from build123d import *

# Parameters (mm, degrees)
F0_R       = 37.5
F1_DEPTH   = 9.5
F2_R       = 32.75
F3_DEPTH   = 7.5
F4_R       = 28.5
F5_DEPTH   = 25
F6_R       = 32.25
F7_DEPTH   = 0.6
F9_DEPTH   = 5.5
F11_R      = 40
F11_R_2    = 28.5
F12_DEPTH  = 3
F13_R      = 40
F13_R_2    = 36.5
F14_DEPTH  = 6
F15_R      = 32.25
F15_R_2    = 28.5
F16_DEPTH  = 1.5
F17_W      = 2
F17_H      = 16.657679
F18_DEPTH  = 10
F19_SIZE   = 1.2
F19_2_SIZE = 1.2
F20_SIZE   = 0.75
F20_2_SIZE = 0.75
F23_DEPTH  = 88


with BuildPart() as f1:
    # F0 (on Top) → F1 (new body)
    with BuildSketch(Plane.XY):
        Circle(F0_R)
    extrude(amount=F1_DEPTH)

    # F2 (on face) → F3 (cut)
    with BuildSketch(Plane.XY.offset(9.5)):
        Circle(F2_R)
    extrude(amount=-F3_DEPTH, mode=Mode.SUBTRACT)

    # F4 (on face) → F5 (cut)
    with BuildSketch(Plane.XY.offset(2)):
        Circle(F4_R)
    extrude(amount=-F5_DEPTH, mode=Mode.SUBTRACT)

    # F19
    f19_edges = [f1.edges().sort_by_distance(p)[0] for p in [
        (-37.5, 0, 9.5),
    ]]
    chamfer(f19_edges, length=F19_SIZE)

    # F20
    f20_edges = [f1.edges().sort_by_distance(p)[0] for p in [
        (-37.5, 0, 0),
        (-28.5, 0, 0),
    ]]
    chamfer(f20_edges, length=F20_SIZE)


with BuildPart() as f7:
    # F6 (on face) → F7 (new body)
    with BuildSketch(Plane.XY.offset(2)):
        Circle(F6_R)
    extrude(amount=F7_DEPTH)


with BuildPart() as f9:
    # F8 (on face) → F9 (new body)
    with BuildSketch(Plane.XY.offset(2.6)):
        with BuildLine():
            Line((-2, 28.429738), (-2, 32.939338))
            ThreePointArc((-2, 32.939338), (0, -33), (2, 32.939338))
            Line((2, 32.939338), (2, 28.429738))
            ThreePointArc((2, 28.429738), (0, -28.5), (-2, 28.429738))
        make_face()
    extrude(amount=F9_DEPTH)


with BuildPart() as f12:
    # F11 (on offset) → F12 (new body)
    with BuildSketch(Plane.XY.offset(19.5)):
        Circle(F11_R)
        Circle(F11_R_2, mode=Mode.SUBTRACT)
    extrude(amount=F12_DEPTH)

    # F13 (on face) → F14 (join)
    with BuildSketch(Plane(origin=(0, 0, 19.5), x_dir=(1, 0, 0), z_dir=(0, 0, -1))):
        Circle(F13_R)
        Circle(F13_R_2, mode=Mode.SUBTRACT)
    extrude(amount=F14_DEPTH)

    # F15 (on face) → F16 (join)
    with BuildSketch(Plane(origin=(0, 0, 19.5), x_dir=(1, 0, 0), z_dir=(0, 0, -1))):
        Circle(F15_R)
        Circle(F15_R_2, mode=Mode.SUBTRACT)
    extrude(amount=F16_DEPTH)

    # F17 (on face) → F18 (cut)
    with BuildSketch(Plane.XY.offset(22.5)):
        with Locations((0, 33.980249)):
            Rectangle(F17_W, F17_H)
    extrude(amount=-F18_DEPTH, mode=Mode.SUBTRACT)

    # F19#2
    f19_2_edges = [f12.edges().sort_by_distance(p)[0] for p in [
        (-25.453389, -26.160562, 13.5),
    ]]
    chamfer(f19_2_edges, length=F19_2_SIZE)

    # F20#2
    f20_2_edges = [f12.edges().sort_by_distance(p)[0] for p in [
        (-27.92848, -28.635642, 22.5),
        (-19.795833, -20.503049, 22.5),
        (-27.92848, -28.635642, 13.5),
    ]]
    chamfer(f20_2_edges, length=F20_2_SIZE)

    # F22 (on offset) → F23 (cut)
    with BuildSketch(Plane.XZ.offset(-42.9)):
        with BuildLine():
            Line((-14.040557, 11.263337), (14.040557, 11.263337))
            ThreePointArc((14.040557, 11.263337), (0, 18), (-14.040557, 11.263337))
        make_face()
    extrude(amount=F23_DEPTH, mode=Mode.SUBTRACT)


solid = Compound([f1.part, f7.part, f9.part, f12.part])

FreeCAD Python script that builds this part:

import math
import FreeCAD as App
import Part
import Sketcher

V = App.Vector


def edges_at(feature, points):
    """Names of the edges that pass closest to the given points."""
    edges = feature.Shape.Edges
    near = lambda p: min(range(len(edges)), key=lambda i: edges[i].distToShape(Part.Vertex(*p))[0])
    return sorted({f"Edge{near(p) + 1}" for p in points})


def add_polygon(sketch, points):
    """Adds a closed chain of lines whose ends are joined by coincident constraints."""
    first, n = sketch.GeometryCount, len(points)
    for a, b in zip(points, points[1:] + points[:1]):
        sketch.addGeometry(Part.LineSegment(App.Vector(*a, 0), App.Vector(*b, 0)), False)
    for i in range(n):
        sketch.addConstraint(Sketcher.Constraint("Coincident", first + i, 2, first + (i + 1) % n, 1))

doc = App.newDocument("Part")
body = doc.addObject("PartDesign::Body", "Body")

sketch1 = body.newObject("Sketcher::SketchObject", "Sketch")
sketch1.AttachmentSupport = (doc.getObject("XY_Plane"), [""])
sketch1.MapMode = "FlatFace"
sketch1.addGeometry(Part.Circle(V(0, 0, 0), V(0, 0, 1), 37.5), False)
sketch1.addConstraint([
    Sketcher.Constraint("Coincident", 0, 3, -1, 1),
    Sketcher.Constraint("Diameter", 0, 75.0),
])
pad1 = body.newObject("PartDesign::Pad", "Pad")
pad1.Profile = sketch1
pad1.Length = 9.5

sketch2 = body.newObject("Sketcher::SketchObject", "Sketch001")
sketch2.AttachmentSupport = (doc.getObject("XY_Plane"), [""])
sketch2.MapMode = "FlatFace"
sketch2.AttachmentOffset = App.Placement(V(0, 0, 9.5), App.Rotation())
sketch2.addGeometry(Part.Circle(V(0, 0, 0), V(0, 0, 1), 32.75), False)
sketch2.addConstraint([
    Sketcher.Constraint("Coincident", 0, 3, -1, 1),
    Sketcher.Constraint("Diameter", 0, 65.5),
])
pocket1 = body.newObject("PartDesign::Pocket", "Pocket")
pocket1.Profile = sketch2
pocket1.Length = 7.5

sketch3 = body.newObject("Sketcher::SketchObject", "Sketch002")
sketch3.AttachmentSupport = (doc.getObject("XY_Plane"), [""])
sketch3.MapMode = "FlatFace"
sketch3.AttachmentOffset = App.Placement(V(0, 0, 2), App.Rotation())
sketch3.addGeometry(Part.Circle(V(0, 0, 0), V(0, 0, 1), 28.5), False)
sketch3.addConstraint([
    Sketcher.Constraint("Coincident", 0, 3, -1, 1),
    Sketcher.Constraint("Diameter", 0, 57.0),
])
pocket2 = body.newObject("PartDesign::Pocket", "Pocket001")
pocket2.Profile = sketch3
pocket2.Length = 25
doc.recompute()

chamfer = body.newObject("PartDesign::Chamfer", "Chamfer")
chamfer.Base = (pocket2, edges_at(pocket2, [(-37.5, 0, 9.5)]))
chamfer.Size = 1.2
doc.recompute()

chamfer2 = body.newObject("PartDesign::Chamfer", "Chamfer001")
chamfer2.Base = (chamfer, edges_at(chamfer, [(-37.5, 0, 0), (-28.5, 0, 0)]))
chamfer2.Size = 0.75
body2 = doc.addObject("PartDesign::Body", "Body001")

sketch4 = body2.newObject("Sketcher::SketchObject", "Sketch003")
sketch4.AttachmentSupport = (doc.getObject("XY_Plane001"), [""])
sketch4.MapMode = "FlatFace"
sketch4.AttachmentOffset = App.Placement(V(0, 0, 2), App.Rotation())
sketch4.addGeometry(Part.Circle(V(0, 0, 0), V(0, 0, 1), 32.25), False)
sketch4.addConstraint([
    Sketcher.Constraint("Coincident", 0, 3, -1, 1),
    Sketcher.Constraint("Diameter", 0, 64.5),
])
pad2 = body2.newObject("PartDesign::Pad", "Pad001")
pad2.Profile = sketch4
pad2.Length = 0.6
body3 = doc.addObject("PartDesign::Body", "Body002")

sketch5 = body3.newObject("Sketcher::SketchObject", "Sketch004")
sketch5.AttachmentSupport = (doc.getObject("XY_Plane002"), [""])
sketch5.MapMode = "FlatFace"
sketch5.AttachmentOffset = App.Placement(V(0, 0, 2.6), App.Rotation())
sketch5.addGeometry([
    Part.LineSegment(V(-2, 28.429738, 0), V(-2, 32.939338, 0)),
    Part.ArcOfCircle(Part.Circle(V(0, 0, 0), V(0, 0, 1), 33), math.radians(93.474601), math.radians(446.525399)),
    Part.LineSegment(V(2, 32.939338, 0), V(2, 28.429738, 0)),
    Part.ArcOfCircle(Part.Circle(V(0, 0, 0), V(0, 0, 1), 28.5), math.radians(94.024064), math.radians(445.975936)),
], False)
sketch5.addConstraint([
    Sketcher.Constraint("Coincident", 0, 2, 1, 1),
    Sketcher.Constraint("Coincident", 1, 2, 2, 1),
    Sketcher.Constraint("Coincident", 2, 2, 3, 2),
    Sketcher.Constraint("Coincident", 3, 1, 0, 1),
    Sketcher.Constraint("Vertical", 0),
    Sketcher.Constraint("Vertical", 2),
    Sketcher.Constraint("Coincident", 1, 3, -1, 1),
    Sketcher.Constraint("Coincident", 3, 3, -1, 1),
    Sketcher.Constraint("Horizontal", 0, 2, 1, 2),
    Sketcher.Constraint("Radius", 1, 33.0),
    Sketcher.Constraint("Radius", 3, 28.5),
    Sketcher.Constraint("DistanceX", 0, 2, -1, 1, 2.0),
])
pad3 = body3.newObject("PartDesign::Pad", "Pad002")
pad3.Profile = sketch5
pad3.Length = 5.5
body4 = doc.addObject("PartDesign::Body", "Body003")

sketch6 = body4.newObject("Sketcher::SketchObject", "Sketch005")
sketch6.AttachmentSupport = (doc.getObject("XY_Plane003"), [""])
sketch6.MapMode = "FlatFace"
sketch6.AttachmentOffset = App.Placement(V(0, 0, 19.5), App.Rotation())
sketch6.addGeometry([
    Part.Circle(V(0, 0, 0), V(0, 0, 1), 40),
    Part.Circle(V(0, 0, 0), V(0, 0, 1), 28.5),
], False)
sketch6.addConstraint([
    Sketcher.Constraint("Coincident", 0, 3, -1, 1),
    Sketcher.Constraint("Coincident", 1, 3, -1, 1),
    Sketcher.Constraint("Diameter", 0, 80.0),
    Sketcher.Constraint("Diameter", 1, 57.0),
])
pad4 = body4.newObject("PartDesign::Pad", "Pad003")
pad4.Profile = sketch6
pad4.Length = 3

sketch7 = body4.newObject("Sketcher::SketchObject", "Sketch006")
sketch7.AttachmentSupport = (doc.getObject("XY_Plane003"), [""])
sketch7.MapMode = "FlatFace"
sketch7.AttachmentOffset = App.Placement(V(0, 0, 19.5), App.Rotation())
sketch7.addGeometry([
    Part.Circle(V(0, 0, 0), V(0, 0, 1), 40),
    Part.Circle(V(0, 0, 0), V(0, 0, 1), 36.5),
], False)
sketch7.addConstraint([
    Sketcher.Constraint("Coincident", 0, 3, -1, 1),
    Sketcher.Constraint("Coincident", 1, 3, -1, 1),
    Sketcher.Constraint("Diameter", 0, 80.0),
    Sketcher.Constraint("Diameter", 1, 73.0),
])
pad5 = body4.newObject("PartDesign::Pad", "Pad004")
pad5.Profile = sketch7
pad5.Length = 6
pad5.Reversed = True

sketch8 = body4.newObject("Sketcher::SketchObject", "Sketch007")
sketch8.AttachmentSupport = (doc.getObject("XY_Plane003"), [""])
sketch8.MapMode = "FlatFace"
sketch8.AttachmentOffset = App.Placement(V(0, 0, 19.5), App.Rotation())
sketch8.addGeometry([
    Part.Circle(V(0, 0, 0), V(0, 0, 1), 32.25),
    Part.Circle(V(0, 0, 0), V(0, 0, 1), 28.5),
], False)
sketch8.addConstraint([
    Sketcher.Constraint("Coincident", 0, 3, -1, 1),
    Sketcher.Constraint("Coincident", 1, 3, -1, 1),
    Sketcher.Constraint("Diameter", 1, 57.0),
    Sketcher.Constraint("Diameter", 0, 64.5),
])
pad6 = body4.newObject("PartDesign::Pad", "Pad005")
pad6.Profile = sketch8
pad6.Length = 1.5
pad6.Reversed = True

sketch9 = body4.newObject("Sketcher::SketchObject", "Sketch008")
sketch9.AttachmentSupport = (doc.getObject("XY_Plane003"), [""])
sketch9.MapMode = "FlatFace"
sketch9.AttachmentOffset = App.Placement(V(0, 0, 22.5), App.Rotation())
add_polygon(sketch9, [(-1, 42.309089), (-1, 25.651409), (1, 25.651409), (1, 42.309089)])
sketch9.addConstraint([
    Sketcher.Constraint("Vertical", 0),
    Sketcher.Constraint("Horizontal", 1),
    Sketcher.Constraint("Vertical", 2),
    Sketcher.Constraint("Horizontal", 3),
    Sketcher.Constraint("DistanceX", 1, 1, 1, 2, 2.0),
    Sketcher.Constraint("DistanceX", 0, 2, -1, 1, 1.0),
    Sketcher.Constraint("DistanceY", 0, 2, 0, 1, 16.657679),
    Sketcher.Constraint("DistanceY", -1, 1, 0, 2, 25.651409),
])
pocket3 = body4.newObject("PartDesign::Pocket", "Pocket002")
pocket3.Profile = sketch9
pocket3.Length = 10
doc.recompute()

chamfer3 = body4.newObject("PartDesign::Chamfer", "Chamfer002")
chamfer3.Base = (pocket3, edges_at(pocket3, [(-25.453, -26.161, 13.5)]))
chamfer3.Size = 1.2
doc.recompute()

chamfer4 = body4.newObject("PartDesign::Chamfer", "Chamfer003")
chamfer4.Base = (chamfer3, edges_at(chamfer3, [(-27.928, -28.636, 22.5), (-19.796, -20.503, 22.5), (-27.928, -28.636, 13.5)]))
chamfer4.Size = 0.75

sketch10 = body4.newObject("Sketcher::SketchObject", "Sketch009")
sketch10.AttachmentSupport = (doc.getObject("XZ_Plane003"), [""])
sketch10.MapMode = "FlatFace"
sketch10.AttachmentOffset = App.Placement(V(0, 0, -42.9), App.Rotation())
sketch10.addGeometry([
    Part.LineSegment(V(-14.040557, 11.263337, 0), V(14.040557, 11.263337, 0)),
    Part.ArcOfCircle(Part.Circle(V(0, 0, 0), V(0, 0, 1), 18), math.radians(38.736592), math.radians(141.263408)),
], False)
sketch10.addConstraint([
    Sketcher.Constraint("Coincident", 0, 1, 1, 2),
    Sketcher.Constraint("Coincident", 1, 1, 0, 2),
    Sketcher.Constraint("Horizontal", 0),
    Sketcher.Constraint("Coincident", 1, 3, -1, 1),
    Sketcher.Constraint("Radius", 1, 18.0),
    Sketcher.Constraint("DistanceX", 0, 1, 0, 2, 28.081114),
])
pocket4 = body4.newObject("PartDesign::Pocket", "Pocket003")
pocket4.Profile = sketch10
pocket4.Length = 88
pocket4.Reversed = True

doc.recompute()
